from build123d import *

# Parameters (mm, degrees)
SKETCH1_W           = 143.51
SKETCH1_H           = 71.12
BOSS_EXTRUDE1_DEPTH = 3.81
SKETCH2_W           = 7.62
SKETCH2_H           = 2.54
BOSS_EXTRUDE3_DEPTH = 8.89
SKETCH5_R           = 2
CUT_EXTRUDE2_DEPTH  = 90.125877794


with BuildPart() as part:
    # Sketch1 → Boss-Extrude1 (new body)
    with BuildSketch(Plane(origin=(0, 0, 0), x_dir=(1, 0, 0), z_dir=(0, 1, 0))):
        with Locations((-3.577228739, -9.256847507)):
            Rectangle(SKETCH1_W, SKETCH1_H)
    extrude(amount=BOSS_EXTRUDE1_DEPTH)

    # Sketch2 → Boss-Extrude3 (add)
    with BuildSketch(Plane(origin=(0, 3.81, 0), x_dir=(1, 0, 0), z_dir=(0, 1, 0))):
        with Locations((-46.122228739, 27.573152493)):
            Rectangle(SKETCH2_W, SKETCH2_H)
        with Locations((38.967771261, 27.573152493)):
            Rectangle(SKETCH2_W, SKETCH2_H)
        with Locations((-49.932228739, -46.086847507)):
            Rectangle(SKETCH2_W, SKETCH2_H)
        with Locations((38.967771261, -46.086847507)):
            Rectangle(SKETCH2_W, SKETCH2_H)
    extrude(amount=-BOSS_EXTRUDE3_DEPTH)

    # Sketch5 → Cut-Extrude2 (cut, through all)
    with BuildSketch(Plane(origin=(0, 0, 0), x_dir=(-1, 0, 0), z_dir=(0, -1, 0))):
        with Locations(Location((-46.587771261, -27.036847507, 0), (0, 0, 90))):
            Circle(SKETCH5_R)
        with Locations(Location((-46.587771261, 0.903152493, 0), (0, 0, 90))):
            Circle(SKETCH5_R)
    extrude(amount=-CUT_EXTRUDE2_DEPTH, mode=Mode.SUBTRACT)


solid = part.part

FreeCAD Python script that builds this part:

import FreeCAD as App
import Part
import Sketcher
Q = App.Units.Quantity


def add_polygon(sketch, points):
    """Adds a closed chain of lines whose ends are joined by coincident constraints."""
    first, n = sketch.GeometryCount, len(points)
    for a, b in zip(points, points[1:] + points[:1]):
        sketch.addGeometry(Part.LineSegment(App.Vector(*a, 0), App.Vector(*b, 0)), False)
    for i in range(n):
        sketch.addConstraint(Sketcher.Constraint("Coincident", first + i, 2, first + (i + 1) % n, 1))

doc = App.newDocument("Part")
params = doc.addObject("Spreadsheet::Sheet", "Params")
for row, (alias, value) in enumerate([
    ("sketch1_height", "2.8 in"),
    ("sketch1_width", "5.65 in"),
    ("pad1_length", "0.15 in"),
    ("sketch2_width", "0.3 in"),
    ("sketch2_height", "0.1 in"),
    ("pad2_length", "0.35 in"),
], start=1):
    params.set(f"A{row}", alias)
    params.set(f"B{row}", "=" + value)
    params.setAlias(f"B{row}", alias)

body = doc.addObject("PartDesign::Body", "Body")

# Sketch on XZ plane
sketch1 = doc.addObject("Sketcher::SketchObject", "Sketch")
body.addObject(sketch1)
sketch1.AttachmentSupport = (doc.XZ_Plane, [""])
sketch1.MapMode = "FlatFace"
add_polygon(sketch1, [(-75, -26), (-75, 45), (68, 45), (68, -26)])  # lines 0-3
sketch1.addConstraint(Sketcher.Constraint("Vertical", 0))
sketch1.addConstraint(Sketcher.Constraint("Horizontal", 1))
sketch1.addConstraint(Sketcher.Constraint("Vertical", 2))
sketch1.addConstraint(Sketcher.Constraint("Horizontal", 3))
sketch1.addConstraint(Sketcher.Constraint("DistanceY", 0, 1, 0, 2, Q("2.8 in")))
sketch1.addConstraint(Sketcher.Constraint("DistanceX", 1, 1, 1, 2, Q("5.65 in")))
sketch1.addConstraint(Sketcher.Constraint("DistanceX", 0, 2, -1, 1, Q("75.332229 mm")))
sketch1.addConstraint(Sketcher.Constraint("DistanceY", -1, 1, 0, 2, Q("44.816848 mm")))
sketch1.setExpression("Constraints[8]", "Params.sketch1_height")
sketch1.setExpression("Constraints[9]", "Params.sketch1_width")
pad1 = doc.addObject("PartDesign::Pad", "Pad")
body.addObject(pad1)
pad1.Profile = sketch1
pad1.setExpression("Length", "Params.pad1_length")
pad1.Reversed = True

# Sketch on XZ plane
sketch2 = doc.addObject("Sketcher::SketchObject", "Sketch001")
body.addObject(sketch2)
sketch2.AttachmentSupport = (doc.XZ_Plane, [""])
sketch2.MapMode = "FlatFace"
sketch2.AttachmentOffset = App.Placement(App.Vector(0, 0, -0.15 * 25.4), App.Rotation())
add_polygon(sketch2, [(-49.9, -28.8), (-49.9, -26.3), (-42.3, -26.3), (-42.3, -28.8)])  # lines 0-3
add_polygon(sketch2, [(35.2, -28.8), (35.2, -26.3), (42.8, -26.3), (42.8, -28.8)])  # lines 4-7
add_polygon(sketch2, [(-53.7, 44.8), (-53.7, 47.4), (-46.1, 47.4), (-46.1, 44.8)])  # lines 8-11
add_polygon(sketch2, [(35.2, 44.8), (35.2, 47.4), (42.8, 47.4), (42.8, 44.8)])  # lines 12-15
sketch2.addConstraint(Sketcher.Constraint("Vertical", 0))
sketch2.addConstraint(Sketcher.Constraint("Horizontal", 1))
sketch2.addConstraint(Sketcher.Constraint("Vertical", 2))
sketch2.addConstraint(Sketcher.Constraint("Horizontal", 3))
sketch2.addConstraint(Sketcher.Constraint("Vertical", 4))
sketch2.addConstraint(Sketcher.Constraint("Horizontal", 5))
sketch2.addConstraint(Sketcher.Constraint("Vertical", 6))
sketch2.addConstraint(Sketcher.Constraint("Horizontal", 7))
sketch2.addConstraint(Sketcher.Constraint("Vertical", 8))
sketch2.addConstraint(Sketcher.Constraint("Horizontal", 9))
sketch2.addConstraint(Sketcher.Constraint("Vertical", 10))
sketch2.addConstraint(Sketcher.Constraint("Horizontal", 11))
sketch2.addConstraint(Sketcher.Constraint("Vertical", 12))
sketch2.addConstraint(Sketcher.Constraint("Horizontal", 13))
sketch2.addConstraint(Sketcher.Constraint("Vertical", 14))
sketch2.addConstraint(Sketcher.Constraint("Horizontal", 15))
sketch2.addConstraint(Sketcher.Constraint("Horizontal", 1, 2, 4, 2))
sketch2.addConstraint(Sketcher.Constraint("Horizontal", 3, 2, 6, 2))
sketch2.addConstraint(Sketcher.Constraint("Horizontal", 9, 2, 12, 2))
sketch2.addConstraint(Sketcher.Constraint("Horizontal", 11, 2, 14, 2))
sketch2.addConstraint(Sketcher.Constraint("Vertical", 7, 2, 12, 2))
sketch2.addConstraint(Sketcher.Constraint("Vertical", 6, 2, 13, 2))
sketch2.addConstraint(Sketcher.Constraint("Equal", 3, 5))
sketch2.addConstraint(Sketcher.Constraint("Equal", 7, 9))
sketch2.addConstraint(Sketcher.Constraint("Equal", 6, 8))
sketch2.addConstraint(Sketcher.Constraint("DistanceX", 1, 1, 1, 2, Q("0.3 in")))
sketch2.addConstraint(Sketcher.Constraint("DistanceY", 0, 1, 0, 2, Q("0.1 in")))
sketch2.addConstraint(Sketcher.Constraint("DistanceY", 3, 2, 8, 2, Q("3 in")))
sketch2.addConstraint(Sketcher.Constraint("DistanceX", 8, 2, 4, 2, Q("3.5 in")))
sketch2.addConstraint(Sketcher.Constraint("DistanceX", 1, 2, 4, 2, Q("3.05 in")))
sketch2.addConstraint(Sketcher.Constraint("DistanceX", 0, 2, -1, 1, Q("49.932229 mm")))
sketch2.addConstraint(Sketcher.Constraint("DistanceY", 0, 2, -1, 1, Q("26.303152 mm")))
sketch2.setExpression("Constraints[41]", "Params.sketch2_width")
sketch2.setExpression("Constraints[42]", "Params.sketch2_height")
pad2 = doc.addObject("PartDesign::Pad", "Pad001")
body.addObject(pad2)
pad2.Profile = sketch2
pad2.setExpression("Length", "Params.pad2_length")

# Sketch on XZ plane
sketch3 = doc.addObject("Sketcher::SketchObject", "Sketch002")
body.addObject(sketch3)
sketch3.AttachmentSupport = (doc.XZ_Plane, [""])
sketch3.MapMode = "FlatFace"
sketch3.addGeometry(Part.Circle(App.Vector(46.6, 27, 0), App.Vector(0, 0, 1), 2), False)
sketch3.addGeometry(Part.Circle(App.Vector(46.6, -0.9, 0), App.Vector(0, 0, 1), 2), False)
sketch3.addConstraint(Sketcher.Constraint("Equal", 0, 1))
sketch3.addConstraint(Sketcher.Constraint("Vertical", 0, 3, 1, 3))
sketch3.addConstraint(Sketcher.Constraint("DistanceY", 1, 3, 0, 3, Q("1.1 in")))
sketch3.addConstraint(Sketcher.Constraint("Diameter", 0, Q("4 mm")))
sketch3.addConstraint(Sketcher.Constraint("DistanceX", -1, 1, 0, 3, Q("46.587771 mm")))
sketch3.addConstraint(Sketcher.Constraint("DistanceY", -1, 1, 0, 3, Q("27.036848 mm")))
pocket1 = doc.addObject("PartDesign::Pocket", "Pocket")
body.addObject(pocket1)
pocket1.Profile = sketch3
pocket1.Type = "ThroughAll"

doc.recompute()
